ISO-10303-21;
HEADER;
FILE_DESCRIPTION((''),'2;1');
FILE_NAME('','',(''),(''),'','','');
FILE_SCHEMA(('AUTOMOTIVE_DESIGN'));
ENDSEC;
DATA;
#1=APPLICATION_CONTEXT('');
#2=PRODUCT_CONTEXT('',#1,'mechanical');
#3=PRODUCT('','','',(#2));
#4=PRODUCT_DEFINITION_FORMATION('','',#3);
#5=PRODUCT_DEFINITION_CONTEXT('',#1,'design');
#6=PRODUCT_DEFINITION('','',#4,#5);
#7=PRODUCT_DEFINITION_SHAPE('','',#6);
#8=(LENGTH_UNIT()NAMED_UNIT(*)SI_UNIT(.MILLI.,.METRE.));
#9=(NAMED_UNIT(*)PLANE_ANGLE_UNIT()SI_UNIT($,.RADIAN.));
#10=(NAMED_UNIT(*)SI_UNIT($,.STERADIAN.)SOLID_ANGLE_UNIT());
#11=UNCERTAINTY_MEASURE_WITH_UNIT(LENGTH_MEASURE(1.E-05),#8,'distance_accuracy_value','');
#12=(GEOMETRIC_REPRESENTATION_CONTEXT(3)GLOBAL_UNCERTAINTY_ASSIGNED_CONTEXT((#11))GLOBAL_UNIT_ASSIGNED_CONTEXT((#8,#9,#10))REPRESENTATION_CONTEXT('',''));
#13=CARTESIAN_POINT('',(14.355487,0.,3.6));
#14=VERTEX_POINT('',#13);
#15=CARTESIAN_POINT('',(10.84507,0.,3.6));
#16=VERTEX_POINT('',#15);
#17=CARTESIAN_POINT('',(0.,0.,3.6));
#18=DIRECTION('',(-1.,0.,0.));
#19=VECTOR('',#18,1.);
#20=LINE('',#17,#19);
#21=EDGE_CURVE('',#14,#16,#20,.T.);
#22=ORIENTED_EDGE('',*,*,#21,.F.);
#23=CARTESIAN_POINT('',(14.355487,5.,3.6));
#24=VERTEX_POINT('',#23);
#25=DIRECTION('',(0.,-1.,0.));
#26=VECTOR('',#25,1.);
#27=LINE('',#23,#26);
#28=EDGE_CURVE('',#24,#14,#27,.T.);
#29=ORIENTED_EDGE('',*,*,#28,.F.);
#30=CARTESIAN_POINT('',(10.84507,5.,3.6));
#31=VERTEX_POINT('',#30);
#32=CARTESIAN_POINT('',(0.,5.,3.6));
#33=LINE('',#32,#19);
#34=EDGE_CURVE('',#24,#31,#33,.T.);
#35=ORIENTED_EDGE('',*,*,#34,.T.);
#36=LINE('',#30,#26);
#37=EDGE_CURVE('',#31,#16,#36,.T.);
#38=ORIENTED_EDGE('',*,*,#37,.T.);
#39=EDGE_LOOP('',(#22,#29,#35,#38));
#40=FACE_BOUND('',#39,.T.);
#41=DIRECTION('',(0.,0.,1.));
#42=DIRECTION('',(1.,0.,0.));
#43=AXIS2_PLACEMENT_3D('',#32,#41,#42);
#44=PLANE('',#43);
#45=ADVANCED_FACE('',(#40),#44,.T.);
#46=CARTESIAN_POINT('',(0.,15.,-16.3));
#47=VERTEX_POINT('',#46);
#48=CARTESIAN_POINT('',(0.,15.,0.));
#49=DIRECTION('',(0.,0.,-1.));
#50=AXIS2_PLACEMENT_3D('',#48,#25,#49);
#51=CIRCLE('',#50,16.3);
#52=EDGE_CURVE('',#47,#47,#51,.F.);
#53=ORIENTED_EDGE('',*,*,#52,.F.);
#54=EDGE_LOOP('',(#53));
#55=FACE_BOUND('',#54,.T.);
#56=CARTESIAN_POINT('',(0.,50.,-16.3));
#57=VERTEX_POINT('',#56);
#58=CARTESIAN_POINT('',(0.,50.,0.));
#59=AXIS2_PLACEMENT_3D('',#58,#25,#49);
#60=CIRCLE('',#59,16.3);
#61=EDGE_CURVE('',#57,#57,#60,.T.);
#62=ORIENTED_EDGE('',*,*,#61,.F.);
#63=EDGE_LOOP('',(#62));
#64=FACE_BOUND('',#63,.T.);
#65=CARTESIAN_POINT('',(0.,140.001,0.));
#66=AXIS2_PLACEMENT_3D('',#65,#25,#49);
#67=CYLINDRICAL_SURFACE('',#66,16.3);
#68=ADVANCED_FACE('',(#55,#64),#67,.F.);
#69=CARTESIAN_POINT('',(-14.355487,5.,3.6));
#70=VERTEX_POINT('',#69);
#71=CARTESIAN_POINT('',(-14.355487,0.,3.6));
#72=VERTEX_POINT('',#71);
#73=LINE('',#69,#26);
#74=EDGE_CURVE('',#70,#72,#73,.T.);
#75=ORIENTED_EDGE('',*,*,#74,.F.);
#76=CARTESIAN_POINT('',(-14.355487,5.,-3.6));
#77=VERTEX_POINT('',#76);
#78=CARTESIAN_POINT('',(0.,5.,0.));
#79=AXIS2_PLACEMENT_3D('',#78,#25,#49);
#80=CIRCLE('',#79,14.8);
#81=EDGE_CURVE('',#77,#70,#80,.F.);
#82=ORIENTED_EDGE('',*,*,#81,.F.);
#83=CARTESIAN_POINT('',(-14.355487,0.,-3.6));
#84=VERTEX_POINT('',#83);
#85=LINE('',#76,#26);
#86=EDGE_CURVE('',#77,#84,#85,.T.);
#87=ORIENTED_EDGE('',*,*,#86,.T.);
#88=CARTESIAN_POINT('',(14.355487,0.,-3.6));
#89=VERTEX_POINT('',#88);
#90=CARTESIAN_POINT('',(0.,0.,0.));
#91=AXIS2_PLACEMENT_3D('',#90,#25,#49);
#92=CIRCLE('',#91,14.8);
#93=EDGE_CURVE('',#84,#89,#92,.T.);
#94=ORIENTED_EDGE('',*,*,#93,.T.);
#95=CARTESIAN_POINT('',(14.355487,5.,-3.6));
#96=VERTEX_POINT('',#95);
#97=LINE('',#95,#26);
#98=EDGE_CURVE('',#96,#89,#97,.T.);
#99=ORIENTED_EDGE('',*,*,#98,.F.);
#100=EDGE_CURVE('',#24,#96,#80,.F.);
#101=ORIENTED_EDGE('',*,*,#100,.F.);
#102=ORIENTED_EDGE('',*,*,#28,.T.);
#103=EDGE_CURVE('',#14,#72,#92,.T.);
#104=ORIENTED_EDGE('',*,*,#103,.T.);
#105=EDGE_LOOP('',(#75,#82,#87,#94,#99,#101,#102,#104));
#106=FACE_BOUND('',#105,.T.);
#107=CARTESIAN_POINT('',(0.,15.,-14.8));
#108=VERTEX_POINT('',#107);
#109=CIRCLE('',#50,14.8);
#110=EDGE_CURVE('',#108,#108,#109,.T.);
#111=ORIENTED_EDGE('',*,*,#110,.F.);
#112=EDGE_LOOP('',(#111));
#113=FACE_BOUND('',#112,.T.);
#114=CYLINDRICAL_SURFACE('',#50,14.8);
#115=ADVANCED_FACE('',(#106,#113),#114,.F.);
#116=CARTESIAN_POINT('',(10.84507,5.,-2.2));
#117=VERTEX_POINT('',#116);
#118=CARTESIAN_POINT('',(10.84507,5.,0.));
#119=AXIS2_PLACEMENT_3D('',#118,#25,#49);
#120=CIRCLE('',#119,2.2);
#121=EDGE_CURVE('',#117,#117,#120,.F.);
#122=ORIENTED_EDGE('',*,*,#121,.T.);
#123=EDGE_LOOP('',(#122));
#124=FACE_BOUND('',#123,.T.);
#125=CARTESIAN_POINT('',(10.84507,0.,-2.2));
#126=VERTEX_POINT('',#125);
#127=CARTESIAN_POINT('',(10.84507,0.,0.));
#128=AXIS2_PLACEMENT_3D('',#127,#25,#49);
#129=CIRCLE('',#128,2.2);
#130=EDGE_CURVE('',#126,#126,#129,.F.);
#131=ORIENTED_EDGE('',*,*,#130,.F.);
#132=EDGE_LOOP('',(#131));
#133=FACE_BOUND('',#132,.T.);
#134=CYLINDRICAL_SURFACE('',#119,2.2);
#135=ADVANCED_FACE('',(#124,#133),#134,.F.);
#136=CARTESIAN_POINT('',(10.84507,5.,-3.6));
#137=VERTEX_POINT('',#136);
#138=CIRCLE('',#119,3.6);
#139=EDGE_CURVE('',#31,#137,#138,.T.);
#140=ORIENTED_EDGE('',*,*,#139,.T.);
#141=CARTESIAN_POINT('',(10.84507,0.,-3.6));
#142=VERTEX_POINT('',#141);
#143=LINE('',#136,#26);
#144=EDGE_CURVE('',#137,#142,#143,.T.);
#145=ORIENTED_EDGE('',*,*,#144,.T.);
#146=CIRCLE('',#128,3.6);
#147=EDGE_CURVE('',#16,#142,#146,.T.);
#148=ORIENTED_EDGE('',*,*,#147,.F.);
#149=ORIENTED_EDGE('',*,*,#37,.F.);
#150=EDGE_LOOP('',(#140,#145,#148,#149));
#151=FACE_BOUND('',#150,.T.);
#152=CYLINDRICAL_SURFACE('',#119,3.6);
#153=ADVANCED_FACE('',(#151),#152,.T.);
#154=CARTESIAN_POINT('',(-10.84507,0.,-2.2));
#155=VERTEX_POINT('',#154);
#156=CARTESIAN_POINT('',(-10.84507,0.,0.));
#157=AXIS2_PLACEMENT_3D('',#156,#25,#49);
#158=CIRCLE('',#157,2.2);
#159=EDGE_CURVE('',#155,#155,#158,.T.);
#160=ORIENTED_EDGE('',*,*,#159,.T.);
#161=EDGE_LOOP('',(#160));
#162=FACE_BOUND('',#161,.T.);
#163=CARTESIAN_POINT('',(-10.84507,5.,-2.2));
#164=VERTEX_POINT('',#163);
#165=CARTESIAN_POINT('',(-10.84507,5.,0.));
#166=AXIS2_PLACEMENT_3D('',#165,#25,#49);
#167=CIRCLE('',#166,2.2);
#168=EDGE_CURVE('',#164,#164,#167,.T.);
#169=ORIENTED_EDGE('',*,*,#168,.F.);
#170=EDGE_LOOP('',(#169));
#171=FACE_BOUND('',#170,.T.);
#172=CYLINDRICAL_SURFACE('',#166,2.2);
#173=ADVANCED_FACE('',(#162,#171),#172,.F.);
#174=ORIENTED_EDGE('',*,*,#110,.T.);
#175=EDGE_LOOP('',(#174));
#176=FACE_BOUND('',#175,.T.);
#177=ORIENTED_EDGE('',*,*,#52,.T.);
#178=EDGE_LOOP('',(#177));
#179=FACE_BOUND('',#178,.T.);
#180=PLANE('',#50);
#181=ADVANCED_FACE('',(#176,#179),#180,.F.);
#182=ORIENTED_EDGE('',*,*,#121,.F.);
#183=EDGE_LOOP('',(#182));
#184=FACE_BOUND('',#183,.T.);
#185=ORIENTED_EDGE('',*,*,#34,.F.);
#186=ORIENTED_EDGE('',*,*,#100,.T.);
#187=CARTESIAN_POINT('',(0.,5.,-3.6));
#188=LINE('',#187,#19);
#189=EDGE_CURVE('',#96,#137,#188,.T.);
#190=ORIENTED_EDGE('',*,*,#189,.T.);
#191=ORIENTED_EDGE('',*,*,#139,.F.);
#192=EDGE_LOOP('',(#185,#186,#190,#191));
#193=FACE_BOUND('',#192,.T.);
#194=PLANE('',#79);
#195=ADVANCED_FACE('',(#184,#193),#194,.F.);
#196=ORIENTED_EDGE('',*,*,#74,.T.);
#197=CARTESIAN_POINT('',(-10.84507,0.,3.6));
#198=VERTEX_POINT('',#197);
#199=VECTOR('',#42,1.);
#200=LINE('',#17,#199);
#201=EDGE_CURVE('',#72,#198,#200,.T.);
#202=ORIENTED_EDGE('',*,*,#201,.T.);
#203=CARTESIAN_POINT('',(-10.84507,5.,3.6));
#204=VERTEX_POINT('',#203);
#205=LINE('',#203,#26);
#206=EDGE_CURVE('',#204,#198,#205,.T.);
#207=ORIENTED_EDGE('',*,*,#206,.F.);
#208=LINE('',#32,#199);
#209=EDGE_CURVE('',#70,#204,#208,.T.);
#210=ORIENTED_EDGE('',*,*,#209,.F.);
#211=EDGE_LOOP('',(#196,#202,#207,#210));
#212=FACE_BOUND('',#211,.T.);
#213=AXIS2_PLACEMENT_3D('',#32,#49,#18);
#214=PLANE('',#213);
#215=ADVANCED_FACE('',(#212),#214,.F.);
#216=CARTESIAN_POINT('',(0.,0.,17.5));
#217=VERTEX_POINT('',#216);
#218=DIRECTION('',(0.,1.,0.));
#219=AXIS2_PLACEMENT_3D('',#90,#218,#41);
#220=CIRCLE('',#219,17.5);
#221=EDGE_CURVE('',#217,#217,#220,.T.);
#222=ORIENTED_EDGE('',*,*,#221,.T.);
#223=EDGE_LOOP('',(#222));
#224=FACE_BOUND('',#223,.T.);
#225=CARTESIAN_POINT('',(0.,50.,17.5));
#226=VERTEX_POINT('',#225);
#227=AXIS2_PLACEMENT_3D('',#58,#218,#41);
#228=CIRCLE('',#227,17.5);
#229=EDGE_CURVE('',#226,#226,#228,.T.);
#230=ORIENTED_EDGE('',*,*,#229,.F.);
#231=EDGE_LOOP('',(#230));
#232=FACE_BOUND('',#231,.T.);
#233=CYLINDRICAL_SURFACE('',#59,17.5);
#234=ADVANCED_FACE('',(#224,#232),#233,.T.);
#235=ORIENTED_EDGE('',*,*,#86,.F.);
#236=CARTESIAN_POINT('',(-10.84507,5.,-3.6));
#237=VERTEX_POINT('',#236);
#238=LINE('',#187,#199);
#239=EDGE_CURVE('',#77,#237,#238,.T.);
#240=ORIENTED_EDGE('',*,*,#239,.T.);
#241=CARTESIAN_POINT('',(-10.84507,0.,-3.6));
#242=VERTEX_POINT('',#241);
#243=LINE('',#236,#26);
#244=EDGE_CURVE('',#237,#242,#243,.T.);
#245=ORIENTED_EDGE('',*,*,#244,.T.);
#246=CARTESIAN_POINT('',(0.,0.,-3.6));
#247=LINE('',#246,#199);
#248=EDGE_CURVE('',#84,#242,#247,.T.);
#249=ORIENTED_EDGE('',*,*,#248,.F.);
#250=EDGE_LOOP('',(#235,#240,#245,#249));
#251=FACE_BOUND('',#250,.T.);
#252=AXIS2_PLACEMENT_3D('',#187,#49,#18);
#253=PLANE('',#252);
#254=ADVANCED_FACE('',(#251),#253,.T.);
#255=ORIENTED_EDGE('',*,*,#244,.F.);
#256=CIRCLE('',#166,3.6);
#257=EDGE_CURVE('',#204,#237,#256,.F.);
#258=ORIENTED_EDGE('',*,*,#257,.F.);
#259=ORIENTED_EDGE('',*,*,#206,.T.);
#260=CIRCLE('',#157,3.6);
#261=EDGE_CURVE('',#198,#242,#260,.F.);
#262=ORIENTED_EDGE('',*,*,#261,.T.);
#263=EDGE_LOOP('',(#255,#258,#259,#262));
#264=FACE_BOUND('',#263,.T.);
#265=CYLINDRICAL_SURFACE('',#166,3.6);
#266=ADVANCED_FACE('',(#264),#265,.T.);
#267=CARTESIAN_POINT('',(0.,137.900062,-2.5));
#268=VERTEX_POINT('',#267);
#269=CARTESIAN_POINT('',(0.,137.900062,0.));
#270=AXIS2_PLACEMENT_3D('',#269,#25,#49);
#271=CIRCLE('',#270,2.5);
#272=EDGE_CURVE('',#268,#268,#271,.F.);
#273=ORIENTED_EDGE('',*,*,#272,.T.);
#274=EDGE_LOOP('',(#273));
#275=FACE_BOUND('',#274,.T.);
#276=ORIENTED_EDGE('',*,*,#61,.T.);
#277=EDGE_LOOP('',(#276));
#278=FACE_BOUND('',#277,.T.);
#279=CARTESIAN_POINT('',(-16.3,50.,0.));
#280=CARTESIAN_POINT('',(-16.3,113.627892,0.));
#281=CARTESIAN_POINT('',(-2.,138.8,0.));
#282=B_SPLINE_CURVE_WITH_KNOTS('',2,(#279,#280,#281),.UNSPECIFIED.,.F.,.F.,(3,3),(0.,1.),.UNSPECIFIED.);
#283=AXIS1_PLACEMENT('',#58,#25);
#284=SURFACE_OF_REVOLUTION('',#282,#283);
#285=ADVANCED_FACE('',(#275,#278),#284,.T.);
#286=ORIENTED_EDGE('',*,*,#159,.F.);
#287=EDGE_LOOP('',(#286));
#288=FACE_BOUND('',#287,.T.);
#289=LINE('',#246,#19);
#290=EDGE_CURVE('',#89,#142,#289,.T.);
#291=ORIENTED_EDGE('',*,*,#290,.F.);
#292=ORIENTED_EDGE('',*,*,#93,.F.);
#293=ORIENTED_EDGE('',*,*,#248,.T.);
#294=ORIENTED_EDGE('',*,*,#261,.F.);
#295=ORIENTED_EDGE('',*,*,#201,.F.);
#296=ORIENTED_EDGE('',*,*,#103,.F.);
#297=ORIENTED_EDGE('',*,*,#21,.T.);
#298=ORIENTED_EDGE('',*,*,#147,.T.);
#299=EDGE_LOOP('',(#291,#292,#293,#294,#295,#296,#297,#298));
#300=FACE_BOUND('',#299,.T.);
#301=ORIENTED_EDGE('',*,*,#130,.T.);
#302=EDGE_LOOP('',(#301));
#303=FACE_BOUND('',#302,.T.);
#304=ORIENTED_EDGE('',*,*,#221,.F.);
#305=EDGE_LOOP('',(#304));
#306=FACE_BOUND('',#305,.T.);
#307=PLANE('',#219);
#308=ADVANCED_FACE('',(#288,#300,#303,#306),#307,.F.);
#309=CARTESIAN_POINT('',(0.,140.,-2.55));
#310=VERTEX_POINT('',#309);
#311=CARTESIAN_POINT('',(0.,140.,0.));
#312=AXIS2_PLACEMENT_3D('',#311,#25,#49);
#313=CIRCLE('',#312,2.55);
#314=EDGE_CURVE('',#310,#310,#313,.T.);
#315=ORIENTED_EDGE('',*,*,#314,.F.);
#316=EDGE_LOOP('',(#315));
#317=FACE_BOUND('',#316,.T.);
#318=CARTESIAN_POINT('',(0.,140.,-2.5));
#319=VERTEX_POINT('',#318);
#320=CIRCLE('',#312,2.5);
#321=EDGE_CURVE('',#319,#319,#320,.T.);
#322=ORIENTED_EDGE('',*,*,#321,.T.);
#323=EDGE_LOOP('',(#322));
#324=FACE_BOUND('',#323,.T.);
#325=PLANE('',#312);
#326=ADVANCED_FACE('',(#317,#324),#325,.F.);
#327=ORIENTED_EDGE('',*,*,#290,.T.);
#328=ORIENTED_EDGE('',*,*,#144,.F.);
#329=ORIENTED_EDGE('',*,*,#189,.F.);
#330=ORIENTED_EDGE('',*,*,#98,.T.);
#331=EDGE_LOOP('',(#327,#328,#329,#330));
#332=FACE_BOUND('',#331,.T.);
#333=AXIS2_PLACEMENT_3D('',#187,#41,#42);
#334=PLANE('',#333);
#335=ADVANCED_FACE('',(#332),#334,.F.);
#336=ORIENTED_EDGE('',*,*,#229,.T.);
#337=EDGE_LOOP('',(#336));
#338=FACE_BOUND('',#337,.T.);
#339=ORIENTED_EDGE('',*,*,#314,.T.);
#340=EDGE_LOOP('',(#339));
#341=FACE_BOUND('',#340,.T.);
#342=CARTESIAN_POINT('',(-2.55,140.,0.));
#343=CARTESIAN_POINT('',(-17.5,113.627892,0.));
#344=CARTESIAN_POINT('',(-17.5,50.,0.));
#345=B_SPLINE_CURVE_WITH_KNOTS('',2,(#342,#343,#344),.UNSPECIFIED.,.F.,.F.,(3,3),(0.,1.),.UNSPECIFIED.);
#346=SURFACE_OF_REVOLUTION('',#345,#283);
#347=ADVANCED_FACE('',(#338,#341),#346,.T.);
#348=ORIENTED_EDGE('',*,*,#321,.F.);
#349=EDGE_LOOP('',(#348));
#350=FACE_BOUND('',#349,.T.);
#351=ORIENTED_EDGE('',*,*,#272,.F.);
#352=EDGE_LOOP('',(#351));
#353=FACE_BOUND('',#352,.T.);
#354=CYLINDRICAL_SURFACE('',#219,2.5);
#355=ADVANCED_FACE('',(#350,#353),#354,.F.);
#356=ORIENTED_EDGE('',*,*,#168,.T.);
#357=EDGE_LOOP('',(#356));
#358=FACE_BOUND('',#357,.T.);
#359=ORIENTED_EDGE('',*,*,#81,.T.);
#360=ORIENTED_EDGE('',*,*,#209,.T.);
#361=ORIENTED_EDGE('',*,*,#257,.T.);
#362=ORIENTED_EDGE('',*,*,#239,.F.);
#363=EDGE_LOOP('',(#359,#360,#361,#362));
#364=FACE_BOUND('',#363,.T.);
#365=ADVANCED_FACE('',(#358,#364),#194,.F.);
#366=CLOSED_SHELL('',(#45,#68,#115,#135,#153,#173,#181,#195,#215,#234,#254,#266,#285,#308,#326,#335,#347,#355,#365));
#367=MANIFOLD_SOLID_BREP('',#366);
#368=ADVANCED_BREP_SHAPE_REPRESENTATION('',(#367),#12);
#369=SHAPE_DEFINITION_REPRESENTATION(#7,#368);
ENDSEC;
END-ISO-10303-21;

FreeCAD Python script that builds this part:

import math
import FreeCAD as App
import Part
import Sketcher

V = App.Vector
Q = App.Units.Quantity

doc = App.newDocument("Part")
params = doc.addObject("Spreadsheet::Sheet", "Params")
for row, (alias, value) in enumerate([
    ("sketch1_diameter", "35 mm"),
    ("pad1_length", "50 mm"),
    ("revolution_angle", "360 deg"),
    ("sketch3_diameter", "32.6 mm"),
    ("sketch4_diameter", "5 mm"),
    ("sketch5_diameter", "32.6 mm"),
    ("sketch5_diameter2", "29.6 mm"),
    ("pad2_length", "15 mm"),
    ("sketch6_diameter", "4.4 mm"),
    ("sketch6_radius", "14.8 mm"),
    ("sketch6_radius2", "3.6 mm"),
    ("pad3_length", "5 mm"),
], start=1):
    params.set(f"A{row}", alias)
    params.set(f"B{row}", "=" + value)
    params.setAlias(f"B{row}", alias)

body = doc.addObject("PartDesign::Body", "Body")

# Sketch on XZ plane
sketch1 = body.newObject("Sketcher::SketchObject", "Sketch")
sketch1.AttachmentSupport = (doc.getObject("XZ_Plane"), [""])
sketch1.MapMode = "FlatFace"
sketch1.addGeometry(Part.Circle(V(0, 0, 0), V(0, 0, 1), 18), False)
sketch1.addConstraint([
    Sketcher.Constraint("Coincident", 0, 3, -1, 1),
    Sketcher.Constraint("Diameter", 0, Q("35 mm")),
])
sketch1.setExpression("Constraints[1]", "Params.sketch1_diameter")
pad1 = body.newObject("PartDesign::Pad", "Pad")
pad1.Profile = sketch1
pad1.setExpression("Length", "Params.pad1_length")
pad1.Reversed = True

# Sketch on XY plane
sketch2 = body.newObject("Sketcher::SketchObject", "Sketch001")
sketch2.AttachmentSupport = (doc.getObject("XY_Plane"), [""])
sketch2.MapMode = "FlatFace"
sketch2.addGeometry([
    Part.LineSegment(V(0, 140, 0), V(-2.55, 140, 0)),  # 0
    Part.BSplineCurve([V(-2.55, 140, 0), V(-17.5, 113.627892, 0), V(-17.5, 50, 0)], [3, 3], [0, 1], False, 2, [1, 1, 1], False),  # 1
    Part.LineSegment(V(-17.5, 50, 0), V(-16.3, 50, 0)),  # 2
    Part.BSplineCurve([V(-2, 138.8, 0), V(-16.3, 113.627892, 0), V(-16.3, 50, 0)], [3, 3], [0, 1], False, 2, [1, 1, 1], False),  # 3
    Part.LineSegment(V(-2, 138.8, 0), V(0, 138.8, 0)),  # 4
    Part.LineSegment(V(0, 138.8, 0), V(0, 140, 0)),  # 5
], False)
sketch2.addConstraint([
    Sketcher.Constraint("Block", 1),
    Sketcher.Constraint("Block", 3),
    Sketcher.Constraint("Coincident", 0, 2, 1, 1),
    Sketcher.Constraint("Coincident", 1, 2, 2, 1),
    Sketcher.Constraint("Coincident", 2, 2, 3, 2),
    Sketcher.Constraint("Coincident", 3, 1, 4, 1),
    Sketcher.Constraint("Coincident", 4, 2, 5, 1),
    Sketcher.Constraint("Coincident", 5, 2, 0, 1),
    Sketcher.Constraint("Horizontal", 0),
    Sketcher.Constraint("Horizontal", 4),
    Sketcher.Constraint("Vertical", 5),
    Sketcher.Constraint("PointOnObject", 4, 2, -2),
])
revolution = body.newObject("PartDesign::Revolution", "Revolution")
revolution.Profile = sketch2
revolution.ReferenceAxis = (sketch2, ["V_Axis"])
revolution.setExpression("Angle", "Params.revolution_angle")

# Sketch on XZ plane
sketch3 = body.newObject("Sketcher::SketchObject", "Sketch002")
sketch3.AttachmentSupport = (doc.getObject("XZ_Plane"), [""])
sketch3.MapMode = "FlatFace"
sketch3.addGeometry(Part.Circle(V(0, 0, 0), V(0, 0, 1), 16), False)
sketch3.addConstraint([
    Sketcher.Constraint("Coincident", 0, 3, -1, 1),
    Sketcher.Constraint("Diameter", 0, Q("32.6 mm")),
])
sketch3.setExpression("Constraints[1]", "Params.sketch3_diameter")
pocket1 = body.newObject("PartDesign::Pocket", "Pocket")
pocket1.Profile = sketch3
pocket1.Type = "UpToFirst"

# Sketch on XZ plane
sketch4 = body.newObject("Sketcher::SketchObject", "Sketch003")
sketch4.AttachmentSupport = (doc.getObject("XZ_Plane"), [""])
sketch4.MapMode = "FlatFace"
sketch4.AttachmentOffset = App.Placement(V(0, 0, -140), App.Rotation())
sketch4.addGeometry(Part.Circle(V(0, 0, 0), V(0, 0, 1), 2.5), False)
sketch4.addConstraint([
    Sketcher.Constraint("Coincident", 0, 3, -1, 1),
    Sketcher.Constraint("Diameter", 0, Q("5 mm")),
])
sketch4.setExpression("Constraints[1]", "Params.sketch4_diameter")
pocket2 = body.newObject("PartDesign::Pocket", "Pocket001")
pocket2.Profile = sketch4
pocket2.Type = "ThroughAll"
pocket2.Midplane = True

# Sketch on XZ plane
sketch5 = body.newObject("Sketcher::SketchObject", "Sketch004")
sketch5.AttachmentSupport = (doc.getObject("XZ_Plane"), [""])
sketch5.MapMode = "FlatFace"
sketch5.addGeometry([
    Part.Circle(V(0, 0, 0), V(0, 0, 1), 16),
    Part.Circle(V(0, 0, 0), V(0, 0, 1), 15),
], False)
sketch5.addConstraint([
    Sketcher.Constraint("Coincident", 0, 3, -1, 1),
    Sketcher.Constraint("Coincident", 1, 3, -1, 1),
    Sketcher.Constraint("Diameter", 0, Q("32.6 mm")),
    Sketcher.Constraint("Diameter", 1, Q("29.6 mm")),
])
sketch5.setExpression("Constraints[2]", "Params.sketch5_diameter")
sketch5.setExpression("Constraints[3]", "Params.sketch5_diameter2")
pad2 = body.newObject("PartDesign::Pad", "Pad001")
pad2.Profile = sketch5
pad2.setExpression("Length", "Params.pad2_length")
pad2.Reversed = True

# Sketch on XZ plane
sketch6 = body.newObject("Sketcher::SketchObject", "Sketch005")
sketch6.AttachmentSupport = (doc.getObject("XZ_Plane"), [""])
sketch6.MapMode = "FlatFace"
sketch6.addGeometry([
    Part.ArcOfCircle(Part.Circle(V(0, 0, 0), V(0, 0, 1), 14.8), math.radians(180), math.radians(194.08)),  # 0
    Part.LineSegment(V(-14.4, -3.6, 0), V(-10.8, -3.6, 0)),  # 1
    Part.ArcOfCircle(Part.Circle(V(-10.8, 0, 0), V(0, 0, 1), 3.6), math.radians(-90), math.radians(0)),  # 2
    Part.ArcOfCircle(Part.Circle(V(-10.8, 0, 0), V(0, 0, 1), 3.6), math.radians(0), math.radians(90)),  # 3
    Part.LineSegment(V(-10.8, 3.6, 0), V(-14.4, 3.6, 0)),  # 4
    Part.ArcOfCircle(Part.Circle(V(0, 0, 0), V(0, 0, 1), 14.8), math.radians(165.92), math.radians(180)),  # 5
    Part.Circle(V(-10.8, 0, 0), V(0, 0, 1), 2.2),  # 6
    Part.ArcOfCircle(Part.Circle(V(0, 0, 0), V(0, 0, 1), 14.8), math.radians(0), math.radians(14.08)),  # 7
    Part.LineSegment(V(14.4, 3.6, 0), V(10.8, 3.6, 0)),  # 8
    Part.ArcOfCircle(Part.Circle(V(10.8, 0, 0), V(0, 0, 1), 3.6), math.radians(90), math.radians(180)),  # 9
    Part.ArcOfCircle(Part.Circle(V(10.8, 0, 0), V(0, 0, 1), 3.6), math.radians(180), math.radians(270)),  # 10
    Part.LineSegment(V(10.8, -3.6, 0), V(14.4, -3.6, 0)),  # 11
    Part.ArcOfCircle(Part.Circle(V(0, 0, 0), V(0, 0, 1), 14.8), math.radians(-14.08), math.radians(0)),  # 12
    Part.Circle(V(10.8, 0, 0), V(0, 0, 1), 2.2),  # 13
], False)
sketch6.addConstraint([
    Sketcher.Constraint("Coincident", 0, 2, 1, 1),
    Sketcher.Constraint("Tangent", 1, 2, 2, 1),
    Sketcher.Constraint("Tangent", 2, 2, 3, 1),
    Sketcher.Constraint("Tangent", 3, 2, 4, 1),
    Sketcher.Constraint("Coincident", 4, 2, 5, 1),
    Sketcher.Constraint("Tangent", 5, 2, 0, 1),
    Sketcher.Constraint("Coincident", 7, 2, 8, 1),
    Sketcher.Constraint("Tangent", 8, 2, 9, 1),
    Sketcher.Constraint("Tangent", 9, 2, 10, 1),
    Sketcher.Constraint("Tangent", 10, 2, 11, 1),
    Sketcher.Constraint("Coincident", 11, 2, 12, 1),
    Sketcher.Constraint("Tangent", 12, 2, 7, 1),
    Sketcher.Constraint("Horizontal", 1),
    Sketcher.Constraint("Horizontal", 4),
    Sketcher.Constraint("Horizontal", 8),
    Sketcher.Constraint("Horizontal", 11),
    Sketcher.Constraint("Coincident", 0, 3, -1, 1),
    Sketcher.Constraint("Coincident", 7, 3, -1, 1),
    Sketcher.Constraint("Coincident", 6, 3, 2, 3),
    Sketcher.Constraint("Coincident", 13, 3, 9, 3),
    Sketcher.Constraint("Equal", 2, 3),
    Sketcher.Constraint("Equal", 0, 5),
    Sketcher.Constraint("Equal", 5, 7),
    Sketcher.Constraint("Equal", 3, 9),
    Sketcher.Constraint("Equal", 9, 10),
    Sketcher.Constraint("Equal", 7, 12),
    Sketcher.Constraint("Equal", 6, 13),
    Sketcher.Constraint("Symmetric", 2, 3, 9, 3, -1, 1),
    Sketcher.Constraint("PointOnObject", 2, 3, -1),
    Sketcher.Constraint("PointOnObject", 2, 2, -1),
    Sketcher.Constraint("PointOnObject", 5, 2, -1),
    Sketcher.Constraint("PointOnObject", 9, 2, -1),
    Sketcher.Constraint("PointOnObject", 12, 2, -1),
    Sketcher.Constraint("Diameter", 6, Q("4.4 mm")),
    Sketcher.Constraint("Radius", 0, Q("14.8 mm")),
    Sketcher.Constraint("Radius", 2, Q("3.6 mm")),
    Sketcher.Constraint("DistanceX", 1, 1, 1, 2, Q("3.510416 mm")),
])
sketch6.setExpression("Constraints[33]", "Params.sketch6_diameter")
sketch6.setExpression("Constraints[34]", "Params.sketch6_radius")
sketch6.setExpression("Constraints[35]", "Params.sketch6_radius2")
pad3 = body.newObject("PartDesign::Pad", "Pad002")
pad3.Profile = sketch6
pad3.setExpression("Length", "Params.pad3_length")
pad3.Reversed = True

doc.recompute()
